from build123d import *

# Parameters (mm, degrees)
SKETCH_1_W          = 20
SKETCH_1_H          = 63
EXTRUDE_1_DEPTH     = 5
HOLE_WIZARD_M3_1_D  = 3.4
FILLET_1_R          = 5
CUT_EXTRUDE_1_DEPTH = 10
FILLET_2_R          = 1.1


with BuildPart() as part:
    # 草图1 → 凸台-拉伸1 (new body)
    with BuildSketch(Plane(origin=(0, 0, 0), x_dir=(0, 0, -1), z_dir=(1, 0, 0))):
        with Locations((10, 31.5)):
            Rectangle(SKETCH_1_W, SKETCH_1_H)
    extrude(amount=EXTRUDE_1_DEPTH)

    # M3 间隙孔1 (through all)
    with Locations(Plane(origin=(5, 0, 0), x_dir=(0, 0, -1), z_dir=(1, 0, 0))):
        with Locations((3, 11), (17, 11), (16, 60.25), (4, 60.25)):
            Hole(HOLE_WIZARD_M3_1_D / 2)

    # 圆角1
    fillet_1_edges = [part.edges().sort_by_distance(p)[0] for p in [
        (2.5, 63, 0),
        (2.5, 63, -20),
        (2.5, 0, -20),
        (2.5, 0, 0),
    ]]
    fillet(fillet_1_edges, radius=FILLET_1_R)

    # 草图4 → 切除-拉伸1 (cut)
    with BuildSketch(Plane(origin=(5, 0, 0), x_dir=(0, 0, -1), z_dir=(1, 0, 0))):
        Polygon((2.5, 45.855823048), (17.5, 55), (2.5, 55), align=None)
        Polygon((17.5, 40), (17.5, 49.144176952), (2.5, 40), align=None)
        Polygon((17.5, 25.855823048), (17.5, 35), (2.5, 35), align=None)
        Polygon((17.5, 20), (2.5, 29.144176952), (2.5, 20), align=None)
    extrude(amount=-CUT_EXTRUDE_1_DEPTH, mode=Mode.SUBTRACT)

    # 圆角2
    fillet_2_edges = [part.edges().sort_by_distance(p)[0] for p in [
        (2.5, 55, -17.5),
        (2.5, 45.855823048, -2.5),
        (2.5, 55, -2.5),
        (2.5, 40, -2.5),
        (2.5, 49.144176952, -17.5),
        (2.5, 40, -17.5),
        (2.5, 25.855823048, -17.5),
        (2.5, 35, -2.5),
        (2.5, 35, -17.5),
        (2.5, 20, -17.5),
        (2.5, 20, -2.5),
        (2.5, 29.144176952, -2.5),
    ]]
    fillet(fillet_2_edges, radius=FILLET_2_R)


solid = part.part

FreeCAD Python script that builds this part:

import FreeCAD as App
import Part
import Sketcher
from FreeCAD import Vector


def edges_at(feature, points):
    """Names of the edges that pass closest to the given points."""
    edges = feature.Shape.Edges
    near = lambda p: min(range(len(edges)), key=lambda i: edges[i].distToShape(Part.Vertex(*p))[0])
    return sorted({f"Edge{near(p) + 1}" for p in points})

doc = App.newDocument("Part")
body = doc.addObject("PartDesign::Body", "Body")

sketch1 = body.newObject("Sketcher::SketchObject", "Sketch")
sketch1.AttachmentSupport = (doc.getObject("YZ_Plane"), [""])
sketch1.MapMode = "FlatFace"
sketch1.addGeometry(Part.LineSegment(Vector(63, 0, 0), Vector(0, 0, 0)), False)
sketch1.addGeometry(Part.LineSegment(Vector(0, 0, 0), Vector(0, -20, 0)), False)
sketch1.addGeometry(Part.LineSegment(Vector(0, -20, 0), Vector(63, -20, 0)), False)
sketch1.addGeometry(Part.LineSegment(Vector(63, -20, 0), Vector(63, 0, 0)), False)
sketch1.addConstraint(Sketcher.Constraint("Coincident", 0, 2, 1, 1))
sketch1.addConstraint(Sketcher.Constraint("Coincident", 1, 2, 2, 1))
sketch1.addConstraint(Sketcher.Constraint("Coincident", 2, 2, 3, 1))
sketch1.addConstraint(Sketcher.Constraint("Coincident", 3, 2, 0, 1))
sketch1.addConstraint(Sketcher.Constraint("Horizontal", 0))
sketch1.addConstraint(Sketcher.Constraint("Vertical", 1))
sketch1.addConstraint(Sketcher.Constraint("Horizontal", 2))
sketch1.addConstraint(Sketcher.Constraint("Vertical", 3))
sketch1.addConstraint(Sketcher.Constraint("Coincident", 0, 2, -1, 1))
sketch1.addConstraint(Sketcher.Constraint("DistanceX", 0, 2, 0, 1, 63.0))
sketch1.addConstraint(Sketcher.Constraint("DistanceY", 1, 2, 1, 1, 20.0))
pad1 = body.newObject("PartDesign::Pad", "Pad")
pad1.Profile = sketch1
pad1.Length = 5

sketch2 = body.newObject("Sketcher::SketchObject", "Sketch001")
sketch2.AttachmentSupport = (doc.getObject("YZ_Plane"), [""])
sketch2.MapMode = "FlatFace"
sketch2.AttachmentOffset = App.Placement(Vector(0, 0, 5), App.Rotation())
sketch2.addGeometry(Part.Circle(Vector(11, -3, 0), Vector(0, 0, 1), 1.7), False)
sketch2.addGeometry(Part.Circle(Vector(11, -17, 0), Vector(0, 0, 1), 1.7), False)
sketch2.addGeometry(Part.Circle(Vector(60.2, -16, 0), Vector(0, 0, 1), 1.7), False)
sketch2.addGeometry(Part.Circle(Vector(60.2, -4, 0), Vector(0, 0, 1), 1.7), False)
sketch2.addConstraint(Sketcher.Constraint("Equal", 0, 1))
sketch2.addConstraint(Sketcher.Constraint("Equal", 1, 2))
sketch2.addConstraint(Sketcher.Constraint("Equal", 2, 3))
sketch2.addConstraint(Sketcher.Constraint("Vertical", 0, 3, 1, 3))
sketch2.addConstraint(Sketcher.Constraint("Vertical", 2, 3, 3, 3))
sketch2.addConstraint(Sketcher.Constraint("Diameter", 0, 3.4))
sketch2.addConstraint(Sketcher.Constraint("DistanceX", -1, 1, 0, 3, 11.0))
sketch2.addConstraint(Sketcher.Constraint("DistanceY", 0, 3, -1, 1, 3.0))
sketch2.addConstraint(Sketcher.Constraint("DistanceY", 1, 3, -1, 1, 17.0))
sketch2.addConstraint(Sketcher.Constraint("DistanceY", 2, 3, -1, 1, 16.0))
sketch2.addConstraint(Sketcher.Constraint("DistanceY", 3, 3, -1, 1, 4.0))
sketch2.addConstraint(Sketcher.Constraint("DistanceX", -1, 1, 2, 3, 60.25))
doc.recompute()
hole = body.newObject("PartDesign::Hole", "Hole")
hole.Profile = sketch2
hole.ThreadType = "None"
hole.Diameter = 3.4
hole.DepthType = "ThroughAll"
doc.recompute()

fillet = body.newObject("PartDesign::Fillet", "Fillet")
fillet.Base = (hole, edges_at(hole, [
    (2.5, 63, 0),
    (2.5, 63, -20),
    (2.5, 0, -20),
    (2.5, 0, 0),
]))
fillet.Radius = 5

sketch3 = body.newObject("Sketcher::SketchObject", "Sketch002")
sketch3.AttachmentSupport = (doc.getObject("YZ_Plane"), [""])
sketch3.MapMode = "FlatFace"
sketch3.AttachmentOffset = App.Placement(Vector(0, 0, 5), App.Rotation())
sketch3.addGeometry(Part.LineSegment(Vector(46, -2, 0), Vector(55, -18, 0)), False)
sketch3.addGeometry(Part.LineSegment(Vector(55, -18, 0), Vector(55, -2, 0)), False)
sketch3.addGeometry(Part.LineSegment(Vector(55, -2, 0), Vector(46, -2, 0)), False)
sketch3.addGeometry(Part.LineSegment(Vector(40, -18, 0), Vector(49, -18, 0)), False)
sketch3.addGeometry(Part.LineSegment(Vector(49, -18, 0), Vector(40, -2, 0)), False)
sketch3.addGeometry(Part.LineSegment(Vector(40, -2, 0), Vector(40, -18, 0)), False)
sketch3.addGeometry(Part.LineSegment(Vector(26, -18, 0), Vector(35, -18, 0)), False)
sketch3.addGeometry(Part.LineSegment(Vector(35, -18, 0), Vector(35, -2, 0)), False)
sketch3.addGeometry(Part.LineSegment(Vector(35, -2, 0), Vector(26, -18, 0)), False)
sketch3.addGeometry(Part.LineSegment(Vector(20, -18, 0), Vector(29, -2, 0)), False)
sketch3.addGeometry(Part.LineSegment(Vector(29, -2, 0), Vector(20, -2, 0)), False)
sketch3.addGeometry(Part.LineSegment(Vector(20, -2, 0), Vector(20, -18, 0)), False)
sketch3.addConstraint(Sketcher.Constraint("Coincident", 0, 2, 1, 1))
sketch3.addConstraint(Sketcher.Constraint("Coincident", 1, 2, 2, 1))
sketch3.addConstraint(Sketcher.Constraint("Coincident", 2, 2, 0, 1))
sketch3.addConstraint(Sketcher.Constraint("Coincident", 3, 2, 4, 1))
sketch3.addConstraint(Sketcher.Constraint("Coincident", 4, 2, 5, 1))
sketch3.addConstraint(Sketcher.Constraint("Coincident", 5, 2, 3, 1))
sketch3.addConstraint(Sketcher.Constraint("Coincident", 6, 2, 7, 1))
sketch3.addConstraint(Sketcher.Constraint("Coincident", 7, 2, 8, 1))
sketch3.addConstraint(Sketcher.Constraint("Coincident", 8, 2, 6, 1))
sketch3.addConstraint(Sketcher.Constraint("Coincident", 9, 2, 10, 1))
sketch3.addConstraint(Sketcher.Constraint("Coincident", 10, 2, 11, 1))
sketch3.addConstraint(Sketcher.Constraint("Coincident", 11, 2, 9, 1))
sketch3.addConstraint(Sketcher.Constraint("Vertical", 1))
sketch3.addConstraint(Sketcher.Constraint("Horizontal", 2))
sketch3.addConstraint(Sketcher.Constraint("Horizontal", 3))
sketch3.addConstraint(Sketcher.Constraint("Vertical", 5))
sketch3.addConstraint(Sketcher.Constraint("Horizontal", 6))
sketch3.addConstraint(Sketcher.Constraint("Vertical", 7))
sketch3.addConstraint(Sketcher.Constraint("Horizontal", 10))
sketch3.addConstraint(Sketcher.Constraint("Vertical", 11))
sketch3.addConstraint(Sketcher.Constraint("Parallel", 0, 4))
sketch3.addConstraint(Sketcher.Constraint("Parallel", 8, 9))
sketch3.addConstraint(Sketcher.Constraint("Horizontal", 0, 2, 3, 2))
sketch3.addConstraint(Sketcher.Constraint("Horizontal", 2, 2, 4, 2))
sketch3.addConstraint(Sketcher.Constraint("Horizontal", 5, 2, 6, 2))
sketch3.addConstraint(Sketcher.Constraint("Horizontal", 4, 2, 7, 2))
sketch3.addConstraint(Sketcher.Constraint("Horizontal", 7, 2, 9, 2))
sketch3.addConstraint(Sketcher.Constraint("Horizontal", 8, 2, 11, 2))
sketch3.addConstraint(Sketcher.Constraint("Equal", 3, 6))
sketch3.addConstraint(Sketcher.Constraint("DistanceY", 1, 1, 1, 2, 15.0))
sketch3.addConstraint(Sketcher.Constraint("DistanceX", -1, 1, 0, 2, 55.0))
sketch3.addConstraint(Sketcher.Constraint("DistanceX", -1, 1, 4, 2, 40.0))
sketch3.addConstraint(Sketcher.Constraint("DistanceX", -1, 1, 6, 2, 35.0))
sketch3.addConstraint(Sketcher.Constraint("DistanceX", -1, 1, 10, 2, 20.0))
sketch3.addConstraint(Sketcher.Constraint("DistanceY", 0, 2, -1, 1, 17.5))
sketch3.addConstraint(Sketcher.Constraint("Distance", 0, 17.567469))
pocket1 = body.newObject("PartDesign::Pocket", "Pocket")
pocket1.Profile = sketch3
pocket1.Length = 10
doc.recompute()

fillet2 = body.newObject("PartDesign::Fillet", "Fillet001")
fillet2.Base = (pocket1, edges_at(pocket1, [
    (2.5, 55, -17.5),
    (2.5, 45.856, -2.5),
    (2.5, 55, -2.5),
    (2.5, 40, -2.5),
    (2.5, 49.144, -17.5),
    (2.5, 40, -17.5),
    (2.5, 25.856, -17.5),
    (2.5, 35, -2.5),
    (2.5, 35, -17.5),
    (2.5, 20, -17.5),
    (2.5, 20, -2.5),
    (2.5, 29.144, -2.5),
]))
fillet2.Radius = 1.1

doc.recompute()
